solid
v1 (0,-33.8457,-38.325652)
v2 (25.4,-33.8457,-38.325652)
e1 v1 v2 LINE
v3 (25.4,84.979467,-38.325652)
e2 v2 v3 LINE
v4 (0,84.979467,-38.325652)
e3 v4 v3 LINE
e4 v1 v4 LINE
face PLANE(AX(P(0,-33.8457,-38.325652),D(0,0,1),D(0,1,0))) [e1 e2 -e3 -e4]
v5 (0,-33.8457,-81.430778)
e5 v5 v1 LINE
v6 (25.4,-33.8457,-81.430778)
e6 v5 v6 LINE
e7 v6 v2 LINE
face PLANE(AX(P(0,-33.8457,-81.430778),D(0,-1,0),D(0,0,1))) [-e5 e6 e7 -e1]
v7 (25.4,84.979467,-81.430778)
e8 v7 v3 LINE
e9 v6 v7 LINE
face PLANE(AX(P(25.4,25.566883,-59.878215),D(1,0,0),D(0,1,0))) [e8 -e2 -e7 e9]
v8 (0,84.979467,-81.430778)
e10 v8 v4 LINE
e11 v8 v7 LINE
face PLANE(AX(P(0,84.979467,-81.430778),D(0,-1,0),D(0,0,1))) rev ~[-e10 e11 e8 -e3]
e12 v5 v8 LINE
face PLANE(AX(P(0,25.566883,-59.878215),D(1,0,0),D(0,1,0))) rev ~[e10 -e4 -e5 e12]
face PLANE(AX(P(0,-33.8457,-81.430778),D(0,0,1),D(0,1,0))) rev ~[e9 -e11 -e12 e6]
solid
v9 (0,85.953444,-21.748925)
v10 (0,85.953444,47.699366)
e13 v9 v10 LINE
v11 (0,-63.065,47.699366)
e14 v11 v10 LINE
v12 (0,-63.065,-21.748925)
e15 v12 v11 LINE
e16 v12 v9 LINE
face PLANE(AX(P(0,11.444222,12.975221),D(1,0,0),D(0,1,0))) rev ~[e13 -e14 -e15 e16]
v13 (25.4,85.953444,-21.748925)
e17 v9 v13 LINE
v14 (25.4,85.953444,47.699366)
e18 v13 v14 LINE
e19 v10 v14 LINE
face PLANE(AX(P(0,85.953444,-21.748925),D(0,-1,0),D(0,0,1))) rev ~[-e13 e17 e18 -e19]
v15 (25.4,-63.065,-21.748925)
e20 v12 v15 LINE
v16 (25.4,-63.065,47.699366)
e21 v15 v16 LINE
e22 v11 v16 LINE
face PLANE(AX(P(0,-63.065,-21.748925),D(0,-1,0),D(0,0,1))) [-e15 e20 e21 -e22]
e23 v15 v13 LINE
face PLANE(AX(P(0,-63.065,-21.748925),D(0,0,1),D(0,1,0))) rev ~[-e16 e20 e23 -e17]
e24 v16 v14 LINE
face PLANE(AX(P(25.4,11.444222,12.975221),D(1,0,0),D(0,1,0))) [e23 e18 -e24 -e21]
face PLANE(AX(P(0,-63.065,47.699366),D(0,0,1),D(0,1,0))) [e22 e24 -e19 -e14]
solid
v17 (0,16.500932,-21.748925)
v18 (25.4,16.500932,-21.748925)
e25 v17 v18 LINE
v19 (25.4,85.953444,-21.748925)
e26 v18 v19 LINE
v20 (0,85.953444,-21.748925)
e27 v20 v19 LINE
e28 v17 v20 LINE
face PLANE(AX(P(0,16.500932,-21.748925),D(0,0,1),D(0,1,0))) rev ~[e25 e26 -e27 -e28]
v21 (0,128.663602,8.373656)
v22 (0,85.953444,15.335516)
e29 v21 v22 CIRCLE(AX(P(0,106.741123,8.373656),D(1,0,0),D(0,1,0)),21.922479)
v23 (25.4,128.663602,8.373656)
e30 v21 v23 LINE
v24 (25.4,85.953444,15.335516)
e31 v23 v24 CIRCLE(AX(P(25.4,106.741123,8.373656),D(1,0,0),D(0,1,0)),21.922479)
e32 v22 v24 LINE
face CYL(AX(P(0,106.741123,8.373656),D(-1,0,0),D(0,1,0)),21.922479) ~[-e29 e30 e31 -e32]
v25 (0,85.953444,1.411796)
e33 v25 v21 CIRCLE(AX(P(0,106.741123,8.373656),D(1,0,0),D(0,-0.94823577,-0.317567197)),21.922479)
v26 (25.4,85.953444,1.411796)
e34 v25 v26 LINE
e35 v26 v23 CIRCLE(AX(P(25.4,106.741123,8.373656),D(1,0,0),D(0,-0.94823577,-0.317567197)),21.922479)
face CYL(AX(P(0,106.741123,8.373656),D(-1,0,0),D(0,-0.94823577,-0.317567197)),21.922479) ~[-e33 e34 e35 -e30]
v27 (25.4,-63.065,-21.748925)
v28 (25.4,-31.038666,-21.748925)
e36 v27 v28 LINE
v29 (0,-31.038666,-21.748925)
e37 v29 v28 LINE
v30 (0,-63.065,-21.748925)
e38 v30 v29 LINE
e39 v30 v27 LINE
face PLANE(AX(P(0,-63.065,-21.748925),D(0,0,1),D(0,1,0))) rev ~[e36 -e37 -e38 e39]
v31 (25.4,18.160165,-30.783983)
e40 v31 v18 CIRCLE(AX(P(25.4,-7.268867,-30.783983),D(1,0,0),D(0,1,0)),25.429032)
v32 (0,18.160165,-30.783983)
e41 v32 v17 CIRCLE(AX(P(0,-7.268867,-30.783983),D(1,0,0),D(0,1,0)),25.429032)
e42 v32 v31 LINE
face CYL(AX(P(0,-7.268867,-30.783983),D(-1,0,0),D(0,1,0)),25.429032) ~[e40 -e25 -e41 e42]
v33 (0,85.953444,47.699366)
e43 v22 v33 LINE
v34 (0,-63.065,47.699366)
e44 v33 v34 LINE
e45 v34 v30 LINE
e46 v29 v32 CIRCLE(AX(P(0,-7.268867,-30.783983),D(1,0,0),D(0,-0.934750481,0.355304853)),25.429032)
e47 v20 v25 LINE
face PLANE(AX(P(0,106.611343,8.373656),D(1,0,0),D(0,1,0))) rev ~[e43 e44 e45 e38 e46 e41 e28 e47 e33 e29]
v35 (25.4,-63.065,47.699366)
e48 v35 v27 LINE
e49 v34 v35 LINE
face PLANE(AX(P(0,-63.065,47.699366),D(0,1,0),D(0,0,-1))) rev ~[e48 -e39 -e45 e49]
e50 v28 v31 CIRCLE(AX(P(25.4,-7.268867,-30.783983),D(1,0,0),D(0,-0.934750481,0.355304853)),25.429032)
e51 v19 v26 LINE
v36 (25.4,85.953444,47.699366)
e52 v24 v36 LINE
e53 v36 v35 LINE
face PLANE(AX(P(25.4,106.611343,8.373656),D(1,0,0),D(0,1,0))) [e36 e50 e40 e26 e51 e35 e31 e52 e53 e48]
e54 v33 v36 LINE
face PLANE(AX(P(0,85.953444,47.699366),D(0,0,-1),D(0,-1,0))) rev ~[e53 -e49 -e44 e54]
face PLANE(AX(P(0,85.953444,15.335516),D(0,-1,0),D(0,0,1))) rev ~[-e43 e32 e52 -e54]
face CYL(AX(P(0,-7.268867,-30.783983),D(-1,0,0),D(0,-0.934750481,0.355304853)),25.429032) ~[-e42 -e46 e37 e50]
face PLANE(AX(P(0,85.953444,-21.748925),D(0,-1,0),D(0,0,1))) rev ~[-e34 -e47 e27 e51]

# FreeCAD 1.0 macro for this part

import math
import FreeCAD as App
import Part
import Sketcher
from FreeCAD import Vector
Q = App.Units.Quantity


def add_polygon(sketch, points):
    """Adds a closed chain of lines whose ends are joined by coincident constraints."""
    first, n = sketch.GeometryCount, len(points)
    for a, b in zip(points, points[1:] + points[:1]):
        sketch.addGeometry(Part.LineSegment(App.Vector(*a, 0), App.Vector(*b, 0)), False)
    for i in range(n):
        sketch.addConstraint(Sketcher.Constraint("Coincident", first + i, 2, first + (i + 1) % n, 1))

doc = App.newDocument("Part")
body = doc.addObject("PartDesign::Body", "Body")

sketch1 = body.newObject("Sketcher::SketchObject", "Sketch")
sketch1.AttachmentSupport = (doc.getObject("YZ_Plane"), [""])
sketch1.MapMode = "FlatFace"
sketch1.addGeometry([
    Part.ArcOfCircle(Part.Circle(Vector(107, 8, 0), Vector(0, 0, 1), 22), math.radians(-161), math.radians(0)),
    Part.ArcOfCircle(Part.Circle(Vector(107, 8, 0), Vector(0, 0, 1), 22), math.radians(0), math.radians(161)),
    Part.LineSegment(Vector(86, 15, 0), Vector(86, 48, 0)),
    Part.LineSegment(Vector(86, 48, 0), Vector(-63, 48, 0)),
    Part.LineSegment(Vector(-63, 48, 0), Vector(-63, -22, 0)),
    Part.LineSegment(Vector(-63, -22, 0), Vector(-31, -22, 0)),
    Part.ArcOfCircle(Part.Circle(Vector(-7, -31, 0), Vector(0, 0, 1), 25), math.radians(159), math.radians(360)),
    Part.ArcOfCircle(Part.Circle(Vector(-7, -31, 0), Vector(0, 0, 1), 25), math.radians(0), math.radians(21)),
    Part.LineSegment(Vector(17, -22, 0), Vector(86, -22, 0)),
    Part.LineSegment(Vector(86, -22, 0), Vector(86, 1, 0)),
], False)
sketch1.addConstraint([
    Sketcher.Constraint("Tangent", 0, 2, 1, 1),
    Sketcher.Constraint("Coincident", 1, 2, 2, 1),
    Sketcher.Constraint("Coincident", 2, 2, 3, 1),
    Sketcher.Constraint("Coincident", 3, 2, 4, 1),
    Sketcher.Constraint("Coincident", 4, 2, 5, 1),
    Sketcher.Constraint("Coincident", 5, 2, 6, 1),
    Sketcher.Constraint("Tangent", 6, 2, 7, 1),
    Sketcher.Constraint("Coincident", 7, 2, 8, 1),
    Sketcher.Constraint("Coincident", 8, 2, 9, 1),
    Sketcher.Constraint("Coincident", 9, 2, 0, 1),
    Sketcher.Constraint("Vertical", 2),
    Sketcher.Constraint("Horizontal", 3),
    Sketcher.Constraint("Vertical", 4),
    Sketcher.Constraint("Horizontal", 5),
    Sketcher.Constraint("Horizontal", 8),
    Sketcher.Constraint("Vertical", 9),
    Sketcher.Constraint("Equal", 0, 1),
    Sketcher.Constraint("Equal", 6, 7),
    Sketcher.Constraint("Horizontal", 1, 3, 0, 2),
    Sketcher.Constraint("Horizontal", 7, 3, 6, 2),
    Sketcher.Constraint("Horizontal", 5, 2, 7, 2),
    Sketcher.Constraint("Vertical", 2, 2, 8, 2),
    Sketcher.Constraint("Radius", 0, 21.922479),
    Sketcher.Constraint("Radius", 6, 25.429032),
    Sketcher.Constraint("DistanceX", 8, 1, 8, 2, 69.452512),
    Sketcher.Constraint("DistanceY", 2, 1, 2, 2, 32.363849),
    Sketcher.Constraint("DistanceY", 4, 2, 4, 1, 69.44829),
    Sketcher.Constraint("DistanceY", 9, 1, 9, 2, 23.160721),
    Sketcher.Constraint("DistanceX", -1, 1, 0, 2, 128.663602),
    Sketcher.Constraint("DistanceX", 3, 2, -1, 1, 63.065),
    Sketcher.Constraint("DistanceY", 7, 3, 1, 2, 46.119499),
    Sketcher.Constraint("DistanceY", -1, 1, 0, 3, 8.373656),
])
pad1 = body.newObject("PartDesign::Pad", "Pad")
pad1.Profile = sketch1
pad1.Length = Q("1 in")
body2 = doc.addObject("PartDesign::Body", "Body001")

sketch2 = body2.newObject("Sketcher::SketchObject", "Sketch001")
sketch2.AttachmentSupport = (doc.getObject("YZ_Plane001"), [""])
sketch2.MapMode = "FlatFace"
add_polygon(sketch2, [(-63, 48), (-63, -22), (86, -22), (86, 48)])
sketch2.addConstraint([
    Sketcher.Constraint("Vertical", 0),
    Sketcher.Constraint("Horizontal", 1),
    Sketcher.Constraint("Vertical", 2),
    Sketcher.Constraint("Horizontal", 3),
    Sketcher.Constraint("DistanceY", 0, 2, 0, 1, 69.44829),
    Sketcher.Constraint("DistanceX", 0, 2, -1, 1, 63.065),
    Sketcher.Constraint("DistanceX", 1, 1, 1, 2, 149.018444),
    Sketcher.Constraint("DistanceY", 0, 2, -1, 1, 21.748925),
])
pad2 = body2.newObject("PartDesign::Pad", "Pad001")
pad2.Profile = sketch2
pad2.Length = Q("1 in")
body3 = doc.addObject("PartDesign::Body", "Body002")

sketch3 = body3.newObject("Sketcher::SketchObject", "Sketch002")
sketch3.AttachmentSupport = (doc.getObject("YZ_Plane002"), [""])
sketch3.MapMode = "FlatFace"
add_polygon(sketch3, [(-34, -38), (-34, -81), (85, -81), (85, -38)])
sketch3.addConstraint([
    Sketcher.Constraint("Vertical", 0),
    Sketcher.Constraint("Horizontal", 1),
    Sketcher.Constraint("Vertical", 2),
    Sketcher.Constraint("Horizontal", 3),
    Sketcher.Constraint("DistanceX", 0, 2, -1, 1, 33.8457),
    Sketcher.Constraint("DistanceX", 1, 1, 1, 2, 118.825167),
    Sketcher.Constraint("DistanceY", 0, 2, 0, 1, 43.105125),
    Sketcher.Constraint("DistanceY", 0, 2, -1, 1, 81.430778),
])
pad3 = body3.newObject("PartDesign::Pad", "Pad002")
pad3.Profile = sketch3
pad3.Length = Q("1 in")

doc.recompute()
